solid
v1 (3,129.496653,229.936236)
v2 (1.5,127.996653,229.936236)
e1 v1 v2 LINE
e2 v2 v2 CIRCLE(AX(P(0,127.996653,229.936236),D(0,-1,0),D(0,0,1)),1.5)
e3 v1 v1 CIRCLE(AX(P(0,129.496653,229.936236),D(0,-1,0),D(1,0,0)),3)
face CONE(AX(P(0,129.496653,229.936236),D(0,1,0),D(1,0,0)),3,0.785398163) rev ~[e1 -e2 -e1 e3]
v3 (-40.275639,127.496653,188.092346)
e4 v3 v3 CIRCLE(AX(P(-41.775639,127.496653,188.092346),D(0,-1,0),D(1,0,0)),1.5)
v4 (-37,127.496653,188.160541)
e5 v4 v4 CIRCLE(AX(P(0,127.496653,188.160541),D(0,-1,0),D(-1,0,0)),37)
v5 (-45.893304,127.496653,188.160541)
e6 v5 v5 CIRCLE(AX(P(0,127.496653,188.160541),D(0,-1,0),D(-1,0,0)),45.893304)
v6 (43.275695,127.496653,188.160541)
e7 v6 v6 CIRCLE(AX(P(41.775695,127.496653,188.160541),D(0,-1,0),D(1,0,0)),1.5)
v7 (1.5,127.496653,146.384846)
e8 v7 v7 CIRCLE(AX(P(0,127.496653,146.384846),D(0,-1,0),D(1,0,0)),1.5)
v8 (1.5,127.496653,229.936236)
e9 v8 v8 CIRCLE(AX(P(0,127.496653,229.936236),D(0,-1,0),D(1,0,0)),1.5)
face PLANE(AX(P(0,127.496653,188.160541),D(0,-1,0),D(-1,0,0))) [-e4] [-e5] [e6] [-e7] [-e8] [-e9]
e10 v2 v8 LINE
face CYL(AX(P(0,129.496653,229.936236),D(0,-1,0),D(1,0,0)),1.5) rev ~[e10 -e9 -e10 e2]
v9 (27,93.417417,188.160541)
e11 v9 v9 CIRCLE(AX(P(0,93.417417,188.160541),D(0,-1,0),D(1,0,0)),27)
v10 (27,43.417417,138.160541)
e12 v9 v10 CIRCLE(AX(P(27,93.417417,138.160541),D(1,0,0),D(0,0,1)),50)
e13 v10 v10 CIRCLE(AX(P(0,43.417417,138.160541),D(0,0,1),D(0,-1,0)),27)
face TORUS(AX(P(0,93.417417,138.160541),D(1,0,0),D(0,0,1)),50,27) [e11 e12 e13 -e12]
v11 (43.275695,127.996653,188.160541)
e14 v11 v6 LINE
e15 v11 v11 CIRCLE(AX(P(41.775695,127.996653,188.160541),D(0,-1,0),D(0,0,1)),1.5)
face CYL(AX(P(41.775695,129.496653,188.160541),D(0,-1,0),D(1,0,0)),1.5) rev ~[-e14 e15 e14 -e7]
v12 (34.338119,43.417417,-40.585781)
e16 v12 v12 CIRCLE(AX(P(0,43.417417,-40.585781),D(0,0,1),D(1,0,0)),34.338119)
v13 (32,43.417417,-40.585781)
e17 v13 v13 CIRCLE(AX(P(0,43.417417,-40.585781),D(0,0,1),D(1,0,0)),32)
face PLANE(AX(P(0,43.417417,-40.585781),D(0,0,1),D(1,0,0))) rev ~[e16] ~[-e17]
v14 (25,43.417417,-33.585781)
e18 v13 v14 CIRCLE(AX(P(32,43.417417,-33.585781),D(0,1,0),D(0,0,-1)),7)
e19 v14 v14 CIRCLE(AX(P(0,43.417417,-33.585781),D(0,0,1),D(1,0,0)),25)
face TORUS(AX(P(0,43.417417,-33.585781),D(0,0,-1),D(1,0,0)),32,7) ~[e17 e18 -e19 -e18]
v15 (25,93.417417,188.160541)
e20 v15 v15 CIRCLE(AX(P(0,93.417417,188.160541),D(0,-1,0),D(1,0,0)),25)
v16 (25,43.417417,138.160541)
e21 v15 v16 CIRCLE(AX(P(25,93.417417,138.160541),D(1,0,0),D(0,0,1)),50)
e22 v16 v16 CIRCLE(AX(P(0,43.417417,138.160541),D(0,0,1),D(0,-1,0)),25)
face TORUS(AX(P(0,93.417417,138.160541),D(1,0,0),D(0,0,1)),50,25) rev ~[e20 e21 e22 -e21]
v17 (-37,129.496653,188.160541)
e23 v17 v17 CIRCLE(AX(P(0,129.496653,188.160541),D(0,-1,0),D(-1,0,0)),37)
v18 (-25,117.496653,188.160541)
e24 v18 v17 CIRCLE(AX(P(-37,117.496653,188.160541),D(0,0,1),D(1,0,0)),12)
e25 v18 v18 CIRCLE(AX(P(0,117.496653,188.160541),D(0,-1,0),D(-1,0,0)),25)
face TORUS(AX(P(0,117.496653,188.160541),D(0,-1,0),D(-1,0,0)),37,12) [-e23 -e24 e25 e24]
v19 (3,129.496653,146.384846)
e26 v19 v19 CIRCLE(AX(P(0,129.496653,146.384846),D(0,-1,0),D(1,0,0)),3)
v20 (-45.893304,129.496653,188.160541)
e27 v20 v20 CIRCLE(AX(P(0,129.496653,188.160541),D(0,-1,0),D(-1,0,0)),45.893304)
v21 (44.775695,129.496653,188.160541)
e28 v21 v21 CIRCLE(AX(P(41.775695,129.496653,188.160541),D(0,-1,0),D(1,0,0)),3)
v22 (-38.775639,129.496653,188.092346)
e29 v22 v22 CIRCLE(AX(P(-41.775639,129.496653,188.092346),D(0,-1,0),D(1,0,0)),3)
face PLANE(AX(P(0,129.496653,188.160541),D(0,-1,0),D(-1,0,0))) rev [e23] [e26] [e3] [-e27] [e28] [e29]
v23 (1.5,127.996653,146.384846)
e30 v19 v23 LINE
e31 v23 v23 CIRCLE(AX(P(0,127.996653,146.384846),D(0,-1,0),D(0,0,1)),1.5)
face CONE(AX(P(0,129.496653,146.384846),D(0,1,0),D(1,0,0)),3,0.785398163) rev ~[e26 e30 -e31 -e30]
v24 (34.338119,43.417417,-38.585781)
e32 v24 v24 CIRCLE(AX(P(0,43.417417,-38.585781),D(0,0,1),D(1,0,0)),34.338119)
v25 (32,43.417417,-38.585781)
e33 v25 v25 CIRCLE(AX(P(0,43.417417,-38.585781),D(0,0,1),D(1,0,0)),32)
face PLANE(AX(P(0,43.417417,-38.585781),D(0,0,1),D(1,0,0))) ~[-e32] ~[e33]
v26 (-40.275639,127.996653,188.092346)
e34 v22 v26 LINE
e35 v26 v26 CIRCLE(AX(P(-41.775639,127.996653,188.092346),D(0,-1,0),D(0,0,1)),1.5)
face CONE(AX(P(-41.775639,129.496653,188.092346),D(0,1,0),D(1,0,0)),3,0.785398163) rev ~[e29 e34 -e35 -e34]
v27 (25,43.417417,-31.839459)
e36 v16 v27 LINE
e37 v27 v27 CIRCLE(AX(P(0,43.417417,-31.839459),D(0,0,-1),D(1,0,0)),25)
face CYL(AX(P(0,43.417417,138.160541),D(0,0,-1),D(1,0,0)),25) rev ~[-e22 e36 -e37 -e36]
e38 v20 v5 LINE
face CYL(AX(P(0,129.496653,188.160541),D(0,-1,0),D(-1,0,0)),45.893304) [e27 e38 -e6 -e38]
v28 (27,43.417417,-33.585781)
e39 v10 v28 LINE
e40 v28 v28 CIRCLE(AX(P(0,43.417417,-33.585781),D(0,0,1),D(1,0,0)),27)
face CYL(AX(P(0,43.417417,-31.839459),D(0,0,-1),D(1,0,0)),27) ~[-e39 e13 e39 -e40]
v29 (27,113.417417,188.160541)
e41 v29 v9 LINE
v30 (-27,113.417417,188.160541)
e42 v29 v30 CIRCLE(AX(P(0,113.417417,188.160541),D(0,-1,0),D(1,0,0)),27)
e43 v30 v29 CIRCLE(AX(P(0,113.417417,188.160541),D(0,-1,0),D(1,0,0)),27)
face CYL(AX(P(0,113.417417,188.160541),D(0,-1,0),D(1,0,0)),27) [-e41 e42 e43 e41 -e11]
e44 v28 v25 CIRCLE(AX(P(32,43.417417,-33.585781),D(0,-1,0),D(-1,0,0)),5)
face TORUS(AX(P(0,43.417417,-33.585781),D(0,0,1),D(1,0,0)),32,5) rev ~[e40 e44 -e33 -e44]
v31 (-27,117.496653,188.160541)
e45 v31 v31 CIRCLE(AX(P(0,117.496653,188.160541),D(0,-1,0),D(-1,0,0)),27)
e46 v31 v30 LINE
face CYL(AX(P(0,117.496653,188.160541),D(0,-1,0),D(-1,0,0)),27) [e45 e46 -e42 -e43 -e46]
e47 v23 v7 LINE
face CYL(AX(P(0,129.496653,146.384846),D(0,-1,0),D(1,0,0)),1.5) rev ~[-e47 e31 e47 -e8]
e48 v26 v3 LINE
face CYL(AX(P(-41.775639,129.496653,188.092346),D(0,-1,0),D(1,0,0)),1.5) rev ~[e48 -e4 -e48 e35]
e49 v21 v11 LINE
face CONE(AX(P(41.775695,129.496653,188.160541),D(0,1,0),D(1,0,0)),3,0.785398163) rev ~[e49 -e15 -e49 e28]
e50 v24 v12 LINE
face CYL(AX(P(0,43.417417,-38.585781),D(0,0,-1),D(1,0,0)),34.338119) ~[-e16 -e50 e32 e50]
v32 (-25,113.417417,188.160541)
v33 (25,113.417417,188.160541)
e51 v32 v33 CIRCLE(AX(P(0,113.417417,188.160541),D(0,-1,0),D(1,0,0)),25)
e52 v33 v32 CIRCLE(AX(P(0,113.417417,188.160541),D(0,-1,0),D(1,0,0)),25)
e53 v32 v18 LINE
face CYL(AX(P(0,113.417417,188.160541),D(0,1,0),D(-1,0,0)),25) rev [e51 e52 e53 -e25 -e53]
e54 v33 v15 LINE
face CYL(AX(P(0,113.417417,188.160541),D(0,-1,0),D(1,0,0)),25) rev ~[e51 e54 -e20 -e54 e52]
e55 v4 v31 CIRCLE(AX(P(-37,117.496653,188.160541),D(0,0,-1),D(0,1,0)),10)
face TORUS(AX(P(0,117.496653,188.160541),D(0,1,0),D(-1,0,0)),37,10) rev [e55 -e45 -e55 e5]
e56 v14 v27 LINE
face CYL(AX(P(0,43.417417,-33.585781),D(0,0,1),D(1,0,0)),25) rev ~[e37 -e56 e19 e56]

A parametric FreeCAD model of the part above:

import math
import FreeCAD as App
import Part
import Sketcher
Q = App.Units.Quantity

doc = App.newDocument("Part")
body = doc.addObject("PartDesign::Body", "Body")

# Sketch on XZ plane
sketch1 = body.newObject("Sketcher::SketchObject", "Sketch")
sketch1.AttachmentSupport = (doc.getObject("XZ_Plane"), [""])
sketch1.MapMode = "FlatFace"
sketch1.AttachmentOffset = App.Placement(App.Vector(0, 0, -113.417417), App.Rotation())
sketch1.addGeometry([
    Part.Circle(App.Vector(0, 188.160541, 0), App.Vector(0, 0, 1), 27),
    Part.Circle(App.Vector(0, 188.160541, 0), App.Vector(0, 0, 1), 25),
], False)
sketch1.addConstraint([
    Sketcher.Constraint("Coincident", 1, 3, 0, 3),
    Sketcher.Constraint("PointOnObject", 0, 3, -2),
    Sketcher.Constraint("Diameter", 0, Q("54 mm")),
    Sketcher.Constraint("Diameter", 1, Q("50 mm")),
    Sketcher.Constraint("DistanceY", -1, 1, 0, 3, Q("188.160541 mm")),
])

# Sketch on YZ plane
sketch2 = body.newObject("Sketcher::SketchObject", "Sketch001")
sketch2.AttachmentSupport = (doc.getObject("YZ_Plane"), [""])
sketch2.MapMode = "FlatFace"
sketch2.addGeometry([
    Part.LineSegment(App.Vector(113.417417, 188.160541, 0), App.Vector(93.417417, 188.160541, 0)),
    Part.ArcOfCircle(Part.Circle(App.Vector(93.417417, 138.160541, 0), App.Vector(0, 0, 1), 50), math.radians(90), math.radians(180)),
    Part.LineSegment(App.Vector(43.417417, 138.160541, 0), App.Vector(43.417417, -31.839459, 0)),
], False)
sketch2.addConstraint([
    Sketcher.Constraint("Tangent", 0, 2, 1, 1),
    Sketcher.Constraint("Tangent", 1, 2, 2, 1),
    Sketcher.Constraint("Horizontal", 0),
    Sketcher.Constraint("Vertical", 2),
    Sketcher.Constraint("Radius", 1, Q("50 mm")),
    Sketcher.Constraint("DistanceX", 0, 2, 0, 1, Q("20 mm")),
    Sketcher.Constraint("DistanceY", 2, 2, 2, 1, Q("170 mm")),
    Sketcher.Constraint("DistanceY", -1, 1, 1, 3, Q("138.160541 mm")),
    Sketcher.Constraint("DistanceX", -1, 1, 1, 3, Q("93.417417 mm")),
])
doc.recompute()

additivepipe = body.newObject("PartDesign::AdditivePipe", "AdditivePipe")
additivepipe.Profile = sketch1
additivepipe.Spine = (sketch2, ["Edge1", "Edge2", "Edge3"])

# Sketch on XY plane
sketch3 = body.newObject("Sketcher::SketchObject", "Sketch002")
sketch3.AttachmentSupport = (doc.getObject("XY_Plane"), [""])
sketch3.MapMode = "FlatFace"
sketch3.AttachmentOffset = App.Placement(App.Vector(0, 0, 188.160541), App.Rotation())
sketch3.addGeometry([
    Part.LineSegment(App.Vector(-27, 117.496653, 0), App.Vector(-27, 113.417417, 0)),  # 0
    Part.LineSegment(App.Vector(-27, 113.417417, 0), App.Vector(-25, 113.417417, 0)),  # 1
    Part.LineSegment(App.Vector(-25, 113.417417, 0), App.Vector(-25, 117.496653, 0)),  # 2
    Part.ArcOfCircle(Part.Circle(App.Vector(-37, 117.496653, 0), App.Vector(0, 0, 1), 12), math.radians(0), math.radians(90)),  # 3
    Part.LineSegment(App.Vector(-37, 129.496653, 0), App.Vector(-45.893304, 129.496653, 0)),  # 4
    Part.LineSegment(App.Vector(-45.893304, 129.496653, 0), App.Vector(-45.893304, 127.496653, 0)),  # 5
    Part.LineSegment(App.Vector(-45.893304, 127.496653, 0), App.Vector(-37, 127.496653, 0)),  # 6
    Part.ArcOfCircle(Part.Circle(App.Vector(-37, 117.496653, 0), App.Vector(0, 0, 1), 10), math.radians(0), math.radians(90)),  # 7
], False)
sketch3.addConstraint([
    Sketcher.Constraint("Coincident", 0, 2, 1, 1),
    Sketcher.Constraint("Coincident", 1, 2, 2, 1),
    Sketcher.Constraint("Tangent", 2, 2, 3, 1),
    Sketcher.Constraint("Tangent", 3, 2, 4, 1),
    Sketcher.Constraint("Coincident", 4, 2, 5, 1),
    Sketcher.Constraint("Coincident", 5, 2, 6, 1),
    Sketcher.Constraint("Tangent", 6, 2, 7, 2),
    Sketcher.Constraint("Tangent", 7, 1, 0, 1),
    Sketcher.Constraint("Vertical", 0),
    Sketcher.Constraint("Horizontal", 1),
    Sketcher.Constraint("Vertical", 2),
    Sketcher.Constraint("Horizontal", 4),
    Sketcher.Constraint("Vertical", 5),
    Sketcher.Constraint("Horizontal", 6),
    Sketcher.Constraint("Coincident", 7, 3, 3, 3),
    Sketcher.Constraint("Radius", 3, Q("12 mm")),
    Sketcher.Constraint("Radius", 7, Q("10 mm")),
    Sketcher.Constraint("DistanceX", 3, 3, -1, 1, Q("37 mm")),
    Sketcher.Constraint("DistanceX", 4, 2, 4, 1, Q("8.893304 mm")),
    Sketcher.Constraint("DistanceY", 0, 2, 0, 1, Q("4.079236 mm")),
    Sketcher.Constraint("DistanceY", -1, 1, 3, 3, Q("117.496653 mm")),
])
revolution = body.newObject("PartDesign::Revolution", "Revolution")
revolution.Profile = sketch3
revolution.ReferenceAxis = (sketch3, ["V_Axis"])
revolution.Angle = 360

# Sketch on XZ plane
sketch4 = body.newObject("Sketcher::SketchObject", "Sketch003")
sketch4.AttachmentSupport = (doc.getObject("XZ_Plane"), [""])
sketch4.MapMode = "FlatFace"
sketch4.AttachmentOffset = App.Placement(App.Vector(0, 0, -129.496653), App.Rotation())
sketch4.addGeometry([
    Part.Circle(App.Vector(0, 229.936236, 0), App.Vector(0, 0, 1), 1.5),
    Part.Circle(App.Vector(41.775695, 188.160541, 0), App.Vector(0, 0, 1), 1.5),
    Part.Circle(App.Vector(0, 146.384846, 0), App.Vector(0, 0, 1), 1.5),
    Part.Circle(App.Vector(-41.775639, 188.092346, 0), App.Vector(0, 0, 1), 1.5),
], False)
sketch4.addConstraint([
    Sketcher.Constraint("Equal", 0, 1),
    Sketcher.Constraint("Equal", 1, 2),
    Sketcher.Constraint("Equal", 2, 3),
    Sketcher.Constraint("PointOnObject", 0, 3, -2),
    Sketcher.Constraint("PointOnObject", 2, 3, -2),
    Sketcher.Constraint("Diameter", 0, Q("3 mm")),
    Sketcher.Constraint("DistanceY", 2, 3, 3, 3, Q("41.707499 mm")),
    Sketcher.Constraint("DistanceY", -1, 1, 1, 3, Q("188.160541 mm")),
    Sketcher.Constraint("DistanceX", 3, 3, -1, 1, Q("41.775639 mm")),
    Sketcher.Constraint("DistanceY", 2, 3, 0, 3, Q("83.55139 mm")),
    Sketcher.Constraint("DistanceY", -1, 1, 0, 3, Q("229.936236 mm")),
    Sketcher.Constraint("DistanceX", -1, 1, 1, 3, Q("41.775695 mm")),
])
doc.recompute()
hole = body.newObject("PartDesign::Hole", "Hole")
hole.Profile = sketch4
hole.ThreadType = "None"
hole.Diameter = 3
hole.DepthType = "Dimension"
hole.Depth = 5
hole.DrillPoint = "Angled"
hole.DrillPointAngle = 118
hole.HoleCutType = "Countersink"
hole.HoleCutDiameter = 6
hole.HoleCutCountersinkAngle = 90
hole.Reversed = True

# Sketch on XZ plane
sketch5 = body.newObject("Sketcher::SketchObject", "Sketch004")
sketch5.AttachmentSupport = (doc.getObject("XZ_Plane"), [""])
sketch5.MapMode = "FlatFace"
sketch5.AttachmentOffset = App.Placement(App.Vector(0, 0, -43.417417), App.Rotation())
sketch5.addGeometry([
    Part.LineSegment(App.Vector(25, -31.839459, 0), App.Vector(27, -31.839459, 0)),  # 0
    Part.LineSegment(App.Vector(27, -31.839459, 0), App.Vector(27, -33.585781, 0)),  # 1
    Part.ArcOfCircle(Part.Circle(App.Vector(32, -33.585781, 0), App.Vector(0, 0, 1), 5), math.radians(180), math.radians(270)),  # 2
    Part.LineSegment(App.Vector(32, -38.585781, 0), App.Vector(34.338119, -38.585781, 0)),  # 3
    Part.LineSegment(App.Vector(34.338119, -38.585781, 0), App.Vector(34.338119, -40.585781, 0)),  # 4
    Part.LineSegment(App.Vector(34.338119, -40.585781, 0), App.Vector(32, -40.585781, 0)),  # 5
    Part.ArcOfCircle(Part.Circle(App.Vector(32, -33.585781, 0), App.Vector(0, 0, 1), 7), math.radians(180), math.radians(270)),  # 6
    Part.LineSegment(App.Vector(25, -33.585781, 0), App.Vector(25, -31.839459, 0)),  # 7
], False)
sketch5.addConstraint([
    Sketcher.Constraint("Coincident", 0, 2, 1, 1),
    Sketcher.Constraint("Tangent", 1, 2, 2, 1),
    Sketcher.Constraint("Tangent", 2, 2, 3, 1),
    Sketcher.Constraint("Coincident", 3, 2, 4, 1),
    Sketcher.Constraint("Coincident", 4, 2, 5, 1),
    Sketcher.Constraint("Tangent", 5, 2, 6, 2),
    Sketcher.Constraint("Tangent", 6, 1, 7, 1),
    Sketcher.Constraint("Coincident", 7, 2, 0, 1),
    Sketcher.Constraint("Horizontal", 0),
    Sketcher.Constraint("Vertical", 1),
    Sketcher.Constraint("Horizontal", 3),
    Sketcher.Constraint("Vertical", 4),
    Sketcher.Constraint("Horizontal", 5),
    Sketcher.Constraint("Vertical", 7),
    Sketcher.Constraint("Coincident", 6, 3, 2, 3),
    Sketcher.Constraint("Radius", 2, Q("5 mm")),
    Sketcher.Constraint("Radius", 6, Q("7 mm")),
    Sketcher.Constraint("DistanceX", -1, 1, 2, 3, Q("32 mm")),
    Sketcher.Constraint("DistanceX", 3, 1, 3, 2, Q("2.338119 mm")),
    Sketcher.Constraint("DistanceY", 1, 2, 1, 1, Q("1.746323 mm")),
    Sketcher.Constraint("DistanceY", 2, 3, -1, 1, Q("33.585781 mm")),
])
revolution2 = body.newObject("PartDesign::Revolution", "Revolution001")
revolution2.Profile = sketch5
revolution2.ReferenceAxis = (sketch5, ["V_Axis"])
revolution2.Angle = 360

doc.recompute()
